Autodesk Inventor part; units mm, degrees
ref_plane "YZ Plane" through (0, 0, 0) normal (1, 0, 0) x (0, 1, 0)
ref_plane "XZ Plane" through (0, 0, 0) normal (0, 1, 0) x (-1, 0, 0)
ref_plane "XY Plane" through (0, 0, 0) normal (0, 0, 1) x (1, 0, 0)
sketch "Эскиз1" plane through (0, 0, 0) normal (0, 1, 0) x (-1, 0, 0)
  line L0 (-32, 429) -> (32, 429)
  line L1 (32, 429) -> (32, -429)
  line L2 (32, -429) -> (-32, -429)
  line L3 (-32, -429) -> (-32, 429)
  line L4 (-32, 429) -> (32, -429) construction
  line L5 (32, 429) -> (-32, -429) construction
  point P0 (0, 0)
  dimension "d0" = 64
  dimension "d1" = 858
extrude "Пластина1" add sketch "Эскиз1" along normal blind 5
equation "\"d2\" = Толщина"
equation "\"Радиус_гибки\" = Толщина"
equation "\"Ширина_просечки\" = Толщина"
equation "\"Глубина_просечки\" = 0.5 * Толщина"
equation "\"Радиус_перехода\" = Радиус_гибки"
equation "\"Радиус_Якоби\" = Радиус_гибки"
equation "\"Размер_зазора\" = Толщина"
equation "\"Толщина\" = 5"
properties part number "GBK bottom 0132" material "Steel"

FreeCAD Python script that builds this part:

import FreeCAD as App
import Part
import Sketcher

V = App.Vector


def add_polygon(sketch, points):
    """Adds a closed chain of lines whose ends are joined by coincident constraints."""
    first, n = sketch.GeometryCount, len(points)
    for a, b in zip(points, points[1:] + points[:1]):
        sketch.addGeometry(Part.LineSegment(App.Vector(*a, 0), App.Vector(*b, 0)), False)
    for i in range(n):
        sketch.addConstraint(Sketcher.Constraint("Coincident", first + i, 2, first + (i + 1) % n, 1))

doc = App.newDocument("Part")
body = doc.addObject("PartDesign::Body", "Body")

sketch1 = body.newObject("Sketcher::SketchObject", "Sketch")
sketch1.AttachmentSupport = (doc.getObject("XZ_Plane"), [""])
sketch1.MapMode = "FlatFace"
add_polygon(sketch1, [(-32, 429), (32, 429), (32, -429), (-32, -429)])
sketch1.addConstraint([
    Sketcher.Constraint("Horizontal", 0),
    Sketcher.Constraint("Vertical", 1),
    Sketcher.Constraint("Horizontal", 2),
    Sketcher.Constraint("Vertical", 3),
    Sketcher.Constraint("Symmetric", 0, 2, 2, 2, -1, 1),
    Sketcher.Constraint("DistanceX", 0, 1, 0, 2, 64.0),
    Sketcher.Constraint("DistanceY", 1, 2, 1, 1, 858.0),
])
pad1 = body.newObject("PartDesign::Pad", "Pad")
pad1.Profile = sketch1
pad1.Length = 5
pad1.Reversed = True

doc.recompute()
